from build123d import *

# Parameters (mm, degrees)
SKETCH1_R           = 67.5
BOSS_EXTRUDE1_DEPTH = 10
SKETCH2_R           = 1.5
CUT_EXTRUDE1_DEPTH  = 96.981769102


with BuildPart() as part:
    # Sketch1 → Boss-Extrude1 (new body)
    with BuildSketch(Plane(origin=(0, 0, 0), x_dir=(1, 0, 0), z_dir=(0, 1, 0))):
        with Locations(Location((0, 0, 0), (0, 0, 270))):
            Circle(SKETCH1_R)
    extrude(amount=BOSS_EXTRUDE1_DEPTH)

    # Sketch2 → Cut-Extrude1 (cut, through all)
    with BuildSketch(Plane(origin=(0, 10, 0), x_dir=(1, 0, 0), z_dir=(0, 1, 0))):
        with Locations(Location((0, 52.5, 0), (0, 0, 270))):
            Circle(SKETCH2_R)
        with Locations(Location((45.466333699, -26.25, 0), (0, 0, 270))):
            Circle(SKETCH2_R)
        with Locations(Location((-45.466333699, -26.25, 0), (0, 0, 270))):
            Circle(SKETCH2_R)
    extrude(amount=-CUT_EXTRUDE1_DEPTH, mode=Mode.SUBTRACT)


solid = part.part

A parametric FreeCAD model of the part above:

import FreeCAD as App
import Part
import Sketcher

V = App.Vector

doc = App.newDocument("Part")
body = doc.addObject("PartDesign::Body", "Body")

# Sketch on XZ plane
sketch1 = body.newObject("Sketcher::SketchObject", "Sketch")
sketch1.AttachmentSupport = (doc.getObject("XZ_Plane"), [""])
sketch1.MapMode = "FlatFace"
sketch1.addGeometry(Part.Circle(V(0, 0, 0), V(0, 0, 1), 67.5), False)
sketch1.addConstraint(Sketcher.Constraint("Coincident", 0, 3, -1, 1))
sketch1.addConstraint(Sketcher.Constraint("Diameter", 0, 135.0))
pad1 = body.newObject("PartDesign::Pad", "Pad")
pad1.Profile = sketch1
pad1.Length = 10
pad1.Reversed = True

# Sketch on XZ plane
sketch2 = body.newObject("Sketcher::SketchObject", "Sketch001")
sketch2.AttachmentSupport = (doc.getObject("XZ_Plane"), [""])
sketch2.MapMode = "FlatFace"
sketch2.AttachmentOffset = App.Placement(V(0, 0, -10), App.Rotation())
sketch2.addGeometry(Part.Circle(V(0, -52.5, 0), V(0, 0, 1), 1.5), False)
sketch2.addGeometry(Part.Circle(V(45.466334, 26.25, 0), V(0, 0, 1), 1.5), False)
sketch2.addGeometry(Part.Circle(V(-45.466334, 26.25, 0), V(0, 0, 1), 1.5), False)
sketch2.addConstraint(Sketcher.Constraint("Equal", 0, 1))
sketch2.addConstraint(Sketcher.Constraint("Equal", 1, 2))
sketch2.addConstraint(Sketcher.Constraint("Symmetric", 1, 3, 2, 3, -2))
sketch2.addConstraint(Sketcher.Constraint("PointOnObject", 0, 3, -2))
sketch2.addConstraint(Sketcher.Constraint("Diameter", 0, 3.0))
sketch2.addConstraint(Sketcher.Constraint("DistanceY", 0, 3, -1, 1, 52.5))
sketch2.addConstraint(Sketcher.Constraint("DistanceY", -1, 1, 1, 3, 26.25))
sketch2.addConstraint(Sketcher.Constraint("DistanceX", -1, 1, 1, 3, 45.466334))
pocket1 = body.newObject("PartDesign::Pocket", "Pocket")
pocket1.Profile = sketch2
pocket1.Type = "ThroughAll"
pocket1.Reversed = True

doc.recompute()
